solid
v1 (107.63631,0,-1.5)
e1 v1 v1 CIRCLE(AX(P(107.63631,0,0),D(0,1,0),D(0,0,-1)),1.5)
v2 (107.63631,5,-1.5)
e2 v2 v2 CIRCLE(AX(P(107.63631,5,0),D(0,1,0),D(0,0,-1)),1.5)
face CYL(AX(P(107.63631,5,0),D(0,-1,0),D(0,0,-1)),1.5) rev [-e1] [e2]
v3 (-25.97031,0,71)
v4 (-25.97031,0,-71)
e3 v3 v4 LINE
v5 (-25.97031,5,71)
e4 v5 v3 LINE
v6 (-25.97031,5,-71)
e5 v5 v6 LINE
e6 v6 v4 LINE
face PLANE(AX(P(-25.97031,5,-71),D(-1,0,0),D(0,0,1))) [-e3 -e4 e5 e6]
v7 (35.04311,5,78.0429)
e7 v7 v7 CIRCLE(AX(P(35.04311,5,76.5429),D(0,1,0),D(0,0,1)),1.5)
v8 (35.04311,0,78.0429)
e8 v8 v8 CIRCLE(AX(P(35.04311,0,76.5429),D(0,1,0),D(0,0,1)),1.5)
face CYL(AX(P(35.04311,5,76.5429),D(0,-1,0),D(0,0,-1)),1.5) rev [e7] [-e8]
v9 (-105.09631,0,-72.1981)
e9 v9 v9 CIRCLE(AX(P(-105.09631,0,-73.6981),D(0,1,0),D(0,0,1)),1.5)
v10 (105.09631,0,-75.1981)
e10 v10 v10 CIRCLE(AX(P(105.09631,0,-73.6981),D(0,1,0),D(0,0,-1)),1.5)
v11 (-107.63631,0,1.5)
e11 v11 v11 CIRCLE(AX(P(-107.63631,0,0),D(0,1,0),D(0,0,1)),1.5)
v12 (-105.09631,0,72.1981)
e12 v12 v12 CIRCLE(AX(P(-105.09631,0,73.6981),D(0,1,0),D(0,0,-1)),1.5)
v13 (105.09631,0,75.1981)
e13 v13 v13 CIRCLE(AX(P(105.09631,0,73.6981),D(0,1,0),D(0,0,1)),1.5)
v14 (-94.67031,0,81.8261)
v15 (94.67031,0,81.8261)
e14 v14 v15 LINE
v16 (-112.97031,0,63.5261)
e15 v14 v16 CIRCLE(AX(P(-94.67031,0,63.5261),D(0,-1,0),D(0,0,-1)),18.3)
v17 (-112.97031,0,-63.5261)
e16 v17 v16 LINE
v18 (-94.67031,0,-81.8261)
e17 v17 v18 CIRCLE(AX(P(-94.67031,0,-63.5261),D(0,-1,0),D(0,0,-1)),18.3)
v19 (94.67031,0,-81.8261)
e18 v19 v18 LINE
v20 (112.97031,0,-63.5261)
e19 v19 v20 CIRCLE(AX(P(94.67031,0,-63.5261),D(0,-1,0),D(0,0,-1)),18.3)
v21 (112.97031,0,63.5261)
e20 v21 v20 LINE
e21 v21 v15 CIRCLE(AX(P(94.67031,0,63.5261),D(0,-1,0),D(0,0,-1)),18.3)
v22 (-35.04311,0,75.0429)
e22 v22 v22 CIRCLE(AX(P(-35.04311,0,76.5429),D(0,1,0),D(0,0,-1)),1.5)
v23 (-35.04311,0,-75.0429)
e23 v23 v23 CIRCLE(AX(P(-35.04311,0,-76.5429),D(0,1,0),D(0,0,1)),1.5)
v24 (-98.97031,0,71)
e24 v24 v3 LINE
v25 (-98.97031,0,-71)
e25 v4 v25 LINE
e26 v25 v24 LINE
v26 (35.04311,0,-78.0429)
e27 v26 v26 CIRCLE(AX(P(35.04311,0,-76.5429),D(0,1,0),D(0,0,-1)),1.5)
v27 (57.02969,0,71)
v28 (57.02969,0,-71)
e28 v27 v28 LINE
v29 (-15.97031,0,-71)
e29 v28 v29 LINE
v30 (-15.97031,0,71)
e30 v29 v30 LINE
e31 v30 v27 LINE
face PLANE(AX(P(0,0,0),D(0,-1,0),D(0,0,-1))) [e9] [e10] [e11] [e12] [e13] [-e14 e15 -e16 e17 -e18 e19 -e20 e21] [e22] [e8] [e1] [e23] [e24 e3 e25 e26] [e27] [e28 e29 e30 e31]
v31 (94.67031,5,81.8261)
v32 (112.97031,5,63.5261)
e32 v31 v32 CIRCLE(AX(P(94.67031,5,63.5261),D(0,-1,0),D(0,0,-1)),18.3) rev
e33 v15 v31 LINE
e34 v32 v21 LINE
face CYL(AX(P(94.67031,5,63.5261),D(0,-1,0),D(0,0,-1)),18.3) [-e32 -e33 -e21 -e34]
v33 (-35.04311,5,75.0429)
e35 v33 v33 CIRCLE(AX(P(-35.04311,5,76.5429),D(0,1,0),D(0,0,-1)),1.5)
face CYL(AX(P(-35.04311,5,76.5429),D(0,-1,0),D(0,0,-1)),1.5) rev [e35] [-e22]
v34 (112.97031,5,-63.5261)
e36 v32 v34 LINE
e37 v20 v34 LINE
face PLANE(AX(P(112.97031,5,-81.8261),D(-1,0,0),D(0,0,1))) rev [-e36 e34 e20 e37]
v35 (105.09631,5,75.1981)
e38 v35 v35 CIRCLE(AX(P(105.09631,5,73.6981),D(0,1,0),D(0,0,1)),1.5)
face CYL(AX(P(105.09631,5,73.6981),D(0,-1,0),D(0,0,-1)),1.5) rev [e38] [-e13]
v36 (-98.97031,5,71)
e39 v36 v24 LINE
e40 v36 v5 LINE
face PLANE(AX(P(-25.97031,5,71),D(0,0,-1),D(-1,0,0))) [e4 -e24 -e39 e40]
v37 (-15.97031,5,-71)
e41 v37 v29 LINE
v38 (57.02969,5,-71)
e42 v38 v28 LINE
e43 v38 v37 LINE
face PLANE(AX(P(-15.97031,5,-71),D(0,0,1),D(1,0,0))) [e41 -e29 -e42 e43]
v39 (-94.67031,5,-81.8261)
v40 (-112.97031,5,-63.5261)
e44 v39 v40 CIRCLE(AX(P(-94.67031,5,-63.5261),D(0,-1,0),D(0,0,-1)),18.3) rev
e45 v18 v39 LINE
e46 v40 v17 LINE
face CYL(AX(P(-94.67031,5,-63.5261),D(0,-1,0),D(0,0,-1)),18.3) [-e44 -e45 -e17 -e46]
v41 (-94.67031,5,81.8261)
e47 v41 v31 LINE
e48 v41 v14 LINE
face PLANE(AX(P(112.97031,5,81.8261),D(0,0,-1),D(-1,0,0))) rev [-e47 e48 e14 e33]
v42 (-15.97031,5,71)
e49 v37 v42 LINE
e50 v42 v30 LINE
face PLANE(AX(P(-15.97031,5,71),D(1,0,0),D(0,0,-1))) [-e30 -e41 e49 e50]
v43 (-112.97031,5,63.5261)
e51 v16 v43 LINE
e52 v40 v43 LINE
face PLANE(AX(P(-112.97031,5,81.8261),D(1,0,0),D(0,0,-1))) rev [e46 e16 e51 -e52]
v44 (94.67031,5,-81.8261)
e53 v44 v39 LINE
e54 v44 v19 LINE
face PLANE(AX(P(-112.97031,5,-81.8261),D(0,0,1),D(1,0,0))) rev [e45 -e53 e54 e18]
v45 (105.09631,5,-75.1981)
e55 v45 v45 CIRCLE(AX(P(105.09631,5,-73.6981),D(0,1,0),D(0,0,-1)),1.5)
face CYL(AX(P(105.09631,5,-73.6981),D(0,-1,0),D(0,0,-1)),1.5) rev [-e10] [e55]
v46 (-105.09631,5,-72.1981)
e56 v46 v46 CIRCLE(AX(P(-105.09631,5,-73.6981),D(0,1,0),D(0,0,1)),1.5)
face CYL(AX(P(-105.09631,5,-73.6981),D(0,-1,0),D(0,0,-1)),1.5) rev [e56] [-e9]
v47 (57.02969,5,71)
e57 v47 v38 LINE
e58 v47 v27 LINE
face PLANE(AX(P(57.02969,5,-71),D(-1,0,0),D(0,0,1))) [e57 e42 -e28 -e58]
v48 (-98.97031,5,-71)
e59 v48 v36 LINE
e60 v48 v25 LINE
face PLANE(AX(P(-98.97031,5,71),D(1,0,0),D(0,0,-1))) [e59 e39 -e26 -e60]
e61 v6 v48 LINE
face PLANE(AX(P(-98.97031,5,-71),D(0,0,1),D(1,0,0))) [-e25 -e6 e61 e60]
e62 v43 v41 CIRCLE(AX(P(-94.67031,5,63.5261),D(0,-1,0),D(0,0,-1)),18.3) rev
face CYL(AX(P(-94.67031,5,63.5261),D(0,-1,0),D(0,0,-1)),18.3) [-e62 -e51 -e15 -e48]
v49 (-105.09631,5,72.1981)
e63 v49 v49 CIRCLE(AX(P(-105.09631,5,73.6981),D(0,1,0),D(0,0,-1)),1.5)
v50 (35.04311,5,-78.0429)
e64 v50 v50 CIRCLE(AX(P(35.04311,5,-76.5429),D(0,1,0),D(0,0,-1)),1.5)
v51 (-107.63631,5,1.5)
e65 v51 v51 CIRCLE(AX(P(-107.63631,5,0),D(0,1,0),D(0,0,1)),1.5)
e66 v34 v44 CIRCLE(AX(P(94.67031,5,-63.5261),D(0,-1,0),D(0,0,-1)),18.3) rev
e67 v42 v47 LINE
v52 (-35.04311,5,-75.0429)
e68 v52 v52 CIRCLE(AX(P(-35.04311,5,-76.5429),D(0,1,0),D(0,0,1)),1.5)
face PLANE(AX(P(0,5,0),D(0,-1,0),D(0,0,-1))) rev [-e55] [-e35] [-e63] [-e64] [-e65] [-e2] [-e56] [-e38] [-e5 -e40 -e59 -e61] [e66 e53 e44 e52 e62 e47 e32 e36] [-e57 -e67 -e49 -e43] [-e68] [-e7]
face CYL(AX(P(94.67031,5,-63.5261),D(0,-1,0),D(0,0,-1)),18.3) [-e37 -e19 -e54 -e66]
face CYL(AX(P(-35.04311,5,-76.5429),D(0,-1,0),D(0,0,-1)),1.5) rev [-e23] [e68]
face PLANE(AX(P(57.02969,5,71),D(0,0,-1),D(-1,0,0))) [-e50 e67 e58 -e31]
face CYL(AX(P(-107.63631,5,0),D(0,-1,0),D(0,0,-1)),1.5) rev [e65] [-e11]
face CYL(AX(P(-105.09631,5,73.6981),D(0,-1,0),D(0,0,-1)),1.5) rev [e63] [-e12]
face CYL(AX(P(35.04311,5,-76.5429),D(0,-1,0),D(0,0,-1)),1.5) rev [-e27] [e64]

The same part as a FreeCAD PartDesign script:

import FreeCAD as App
import Part
import Sketcher


def edges_at(feature, points):
    """Names of the edges that pass closest to the given points."""
    edges = feature.Shape.Edges
    near = lambda p: min(range(len(edges)), key=lambda i: edges[i].distToShape(Part.Vertex(*p))[0])
    return sorted({f"Edge{near(p) + 1}" for p in points})

doc = App.newDocument("Part")
body = doc.addObject("PartDesign::Body", "Body")

# Sketch on XZ plane
sketch1 = body.newObject("Sketcher::SketchObject", "Sketch")
sketch1.AttachmentSupport = (doc.getObject("XZ_Plane"), [""])
sketch1.MapMode = "FlatFace"
sketch1.addGeometry(Part.LineSegment(App.Vector(-112.97031, -81.8261, 0), App.Vector(-112.97031, 81.8261, 0)), False)
sketch1.addGeometry(Part.LineSegment(App.Vector(-112.97031, 81.8261, 0), App.Vector(112.97031, 81.8261, 0)), False)
sketch1.addGeometry(Part.LineSegment(App.Vector(112.97031, 81.8261, 0), App.Vector(112.97031, -81.8261, 0)), False)
sketch1.addGeometry(Part.LineSegment(App.Vector(112.97031, -81.8261, 0), App.Vector(-112.97031, -81.8261, 0)), False)
sketch1.addGeometry(Part.Circle(App.Vector(-105.09631, 73.6981, 0), App.Vector(0, 0, 1), 1.5), False)
sketch1.addGeometry(Part.Circle(App.Vector(-35.04311, 76.5429, 0), App.Vector(0, 0, 1), 1.5), False)
sketch1.addGeometry(Part.Circle(App.Vector(35.04311, 76.5429, 0), App.Vector(0, 0, 1), 1.5), False)
sketch1.addGeometry(Part.Circle(App.Vector(105.09631, 73.6981, 0), App.Vector(0, 0, 1), 1.5), False)
sketch1.addGeometry(Part.Circle(App.Vector(-107.63631, 0, 0), App.Vector(0, 0, 1), 1.5), False)
sketch1.addGeometry(Part.LineSegment(App.Vector(-25.97031, 71, 0), App.Vector(-98.97031, 71, 0)), False)
sketch1.addGeometry(Part.LineSegment(App.Vector(-98.97031, 71, 0), App.Vector(-98.97031, -71, 0)), False)
sketch1.addGeometry(Part.LineSegment(App.Vector(-98.97031, -71, 0), App.Vector(-25.97031, -71, 0)), False)
sketch1.addGeometry(Part.LineSegment(App.Vector(-25.97031, -71, 0), App.Vector(-25.97031, 71, 0)), False)
sketch1.addGeometry(Part.Circle(App.Vector(-105.09631, -73.6981, 0), App.Vector(0, 0, 1), 1.5), False)
sketch1.addGeometry(Part.Circle(App.Vector(-35.04311, -76.5429, 0), App.Vector(0, 0, 1), 1.5), False)
sketch1.addGeometry(Part.LineSegment(App.Vector(57.02969, 71, 0), App.Vector(-15.97031, 71, 0)), False)
sketch1.addGeometry(Part.LineSegment(App.Vector(-15.97031, 71, 0), App.Vector(-15.97031, -71, 0)), False)
sketch1.addGeometry(Part.LineSegment(App.Vector(-15.97031, -71, 0), App.Vector(57.02969, -71, 0)), False)
sketch1.addGeometry(Part.LineSegment(App.Vector(57.02969, -71, 0), App.Vector(57.02969, 71, 0)), False)
sketch1.addGeometry(Part.Circle(App.Vector(107.63631, 0, 0), App.Vector(0, 0, 1), 1.5), False)
sketch1.addGeometry(Part.Circle(App.Vector(35.04311, -76.5429, 0), App.Vector(0, 0, 1), 1.5), False)
sketch1.addGeometry(Part.Circle(App.Vector(105.09631, -73.6981, 0), App.Vector(0, 0, 1), 1.5), False)
sketch1.addConstraint(Sketcher.Constraint("Coincident", 0, 2, 1, 1))
sketch1.addConstraint(Sketcher.Constraint("Coincident", 1, 2, 2, 1))
sketch1.addConstraint(Sketcher.Constraint("Coincident", 2, 2, 3, 1))
sketch1.addConstraint(Sketcher.Constraint("Coincident", 3, 2, 0, 1))
sketch1.addConstraint(Sketcher.Constraint("Coincident", 9, 2, 10, 1))
sketch1.addConstraint(Sketcher.Constraint("Coincident", 10, 2, 11, 1))
sketch1.addConstraint(Sketcher.Constraint("Coincident", 11, 2, 12, 1))
sketch1.addConstraint(Sketcher.Constraint("Coincident", 12, 2, 9, 1))
sketch1.addConstraint(Sketcher.Constraint("Coincident", 15, 2, 16, 1))
sketch1.addConstraint(Sketcher.Constraint("Coincident", 16, 2, 17, 1))
sketch1.addConstraint(Sketcher.Constraint("Coincident", 17, 2, 18, 1))
sketch1.addConstraint(Sketcher.Constraint("Coincident", 18, 2, 15, 1))
sketch1.addConstraint(Sketcher.Constraint("Vertical", 0))
sketch1.addConstraint(Sketcher.Constraint("Horizontal", 1))
sketch1.addConstraint(Sketcher.Constraint("Vertical", 2))
sketch1.addConstraint(Sketcher.Constraint("Horizontal", 3))
sketch1.addConstraint(Sketcher.Constraint("Horizontal", 9))
sketch1.addConstraint(Sketcher.Constraint("Vertical", 10))
sketch1.addConstraint(Sketcher.Constraint("Horizontal", 11))
sketch1.addConstraint(Sketcher.Constraint("Vertical", 12))
sketch1.addConstraint(Sketcher.Constraint("Horizontal", 15))
sketch1.addConstraint(Sketcher.Constraint("Vertical", 16))
sketch1.addConstraint(Sketcher.Constraint("Horizontal", 17))
sketch1.addConstraint(Sketcher.Constraint("Vertical", 18))
sketch1.addConstraint(Sketcher.Constraint("Equal", 4, 5))
sketch1.addConstraint(Sketcher.Constraint("Equal", 5, 6))
sketch1.addConstraint(Sketcher.Constraint("Equal", 6, 7))
sketch1.addConstraint(Sketcher.Constraint("Equal", 7, 8))
sketch1.addConstraint(Sketcher.Constraint("Equal", 8, 13))
sketch1.addConstraint(Sketcher.Constraint("Equal", 13, 14))
sketch1.addConstraint(Sketcher.Constraint("Equal", 14, 19))
sketch1.addConstraint(Sketcher.Constraint("Equal", 19, 20))
sketch1.addConstraint(Sketcher.Constraint("Equal", 20, 21))
sketch1.addConstraint(Sketcher.Constraint("Symmetric", 7, 3, 13, 3, -1, 1))
sketch1.addConstraint(Sketcher.Constraint("Symmetric", 6, 3, 14, 3, -1, 1))
sketch1.addConstraint(Sketcher.Constraint("Symmetric", 8, 3, 19, 3, -1, 1))
sketch1.addConstraint(Sketcher.Constraint("Symmetric", 5, 3, 20, 3, -1, 1))
sketch1.addConstraint(Sketcher.Constraint("Symmetric", 4, 3, 21, 3, -1, 1))
sketch1.addConstraint(Sketcher.Constraint("Symmetric", 0, 2, 2, 2, -1, 1))
sketch1.addConstraint(Sketcher.Constraint("Symmetric", 5, 3, 6, 3, -2))
sketch1.addConstraint(Sketcher.Constraint("Symmetric", 4, 3, 7, 3, -2))
sketch1.addConstraint(Sketcher.Constraint("PointOnObject", 8, 3, -1))
sketch1.addConstraint(Sketcher.Constraint("Horizontal", 12, 2, 15, 2))
sketch1.addConstraint(Sketcher.Constraint("Horizontal", 11, 2, 16, 2))
sketch1.addConstraint(Sketcher.Constraint("Equal", 11, 15))
sketch1.addConstraint(Sketcher.Constraint("Diameter", 4, 3.0))
sketch1.addConstraint(Sketcher.Constraint("DistanceX", 9, 2, 9, 1, 73.0))
sketch1.addConstraint(Sketcher.Constraint("DistanceY", 10, 2, 10, 1, 142.0))
sketch1.addConstraint(Sketcher.Constraint("DistanceY", -1, 1, 9, 2, 71.0))
sketch1.addConstraint(Sketcher.Constraint("DistanceX", 0, 2, 9, 2, 14.0))
sketch1.addConstraint(Sketcher.Constraint("DistanceX", 12, 2, 15, 2, 10.0))
sketch1.addConstraint(Sketcher.Constraint("DistanceX", 8, 3, 4, 3, 2.54))
sketch1.addConstraint(Sketcher.Constraint("DistanceY", 0, 1, 0, 2, 163.6522))
sketch1.addConstraint(Sketcher.Constraint("DistanceY", 13, 3, 5, 3, 150.241))
sketch1.addConstraint(Sketcher.Constraint("DistanceX", 0, 2, 4, 3, 7.874))
sketch1.addConstraint(Sketcher.Constraint("DistanceY", 4, 3, 0, 2, 8.128))
sketch1.addConstraint(Sketcher.Constraint("DistanceX", 1, 1, 1, 2, 225.94062))
sketch1.addConstraint(Sketcher.Constraint("DistanceX", 4, 3, 5, 3, 70.0532))
pad1 = body.newObject("PartDesign::Pad", "Pad")
pad1.Profile = sketch1
pad1.Length = 5
pad1.Reversed = True
doc.recompute()

fillet = body.newObject("PartDesign::Fillet", "Fillet")
fillet.Base = (pad1, edges_at(pad1, [
    (-112.97, 2.5, -81.826),
    (112.97, 2.5, -81.826),
    (112.97, 2.5, 81.826),
    (-112.97, 2.5, 81.826),
]))
fillet.Radius = 18.3

doc.recompute()
